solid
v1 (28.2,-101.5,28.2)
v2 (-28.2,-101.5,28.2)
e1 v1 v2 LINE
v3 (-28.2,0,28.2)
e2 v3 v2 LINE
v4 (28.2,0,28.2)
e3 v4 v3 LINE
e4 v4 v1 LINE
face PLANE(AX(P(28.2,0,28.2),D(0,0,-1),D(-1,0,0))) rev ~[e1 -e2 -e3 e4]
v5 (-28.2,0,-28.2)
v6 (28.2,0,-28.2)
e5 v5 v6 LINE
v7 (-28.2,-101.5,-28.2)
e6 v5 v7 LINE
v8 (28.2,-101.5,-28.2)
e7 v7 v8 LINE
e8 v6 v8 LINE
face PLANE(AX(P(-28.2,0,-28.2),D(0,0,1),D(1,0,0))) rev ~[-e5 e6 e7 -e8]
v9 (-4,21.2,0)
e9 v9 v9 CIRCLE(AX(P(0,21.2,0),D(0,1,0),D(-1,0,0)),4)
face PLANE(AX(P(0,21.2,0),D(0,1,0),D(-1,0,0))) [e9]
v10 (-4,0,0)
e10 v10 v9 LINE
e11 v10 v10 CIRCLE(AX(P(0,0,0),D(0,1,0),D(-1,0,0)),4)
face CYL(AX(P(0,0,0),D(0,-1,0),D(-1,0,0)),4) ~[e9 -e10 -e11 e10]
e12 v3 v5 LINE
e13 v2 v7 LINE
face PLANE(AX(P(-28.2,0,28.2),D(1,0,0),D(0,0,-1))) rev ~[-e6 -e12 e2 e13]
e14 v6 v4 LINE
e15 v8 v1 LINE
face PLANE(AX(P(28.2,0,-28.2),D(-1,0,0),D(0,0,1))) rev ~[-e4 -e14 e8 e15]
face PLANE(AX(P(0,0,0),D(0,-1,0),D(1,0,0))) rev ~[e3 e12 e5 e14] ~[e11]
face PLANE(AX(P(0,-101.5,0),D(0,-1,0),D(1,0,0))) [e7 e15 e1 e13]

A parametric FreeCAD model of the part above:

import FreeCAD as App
import Part
import Sketcher
from FreeCAD import Vector
Q = App.Units.Quantity


def add_polygon(sketch, points):
    """Adds a closed chain of lines whose ends are joined by coincident constraints."""
    first, n = sketch.GeometryCount, len(points)
    for a, b in zip(points, points[1:] + points[:1]):
        sketch.addGeometry(Part.LineSegment(App.Vector(*a, 0), App.Vector(*b, 0)), False)
    for i in range(n):
        sketch.addConstraint(Sketcher.Constraint("Coincident", first + i, 2, first + (i + 1) % n, 1))

doc = App.newDocument("Part")
body = doc.addObject("PartDesign::Body", "Body")

# Sketch on XZ plane
sketch1 = body.newObject("Sketcher::SketchObject", "Sketch")
sketch1.AttachmentSupport = (doc.getObject("XZ_Plane"), [""])
sketch1.MapMode = "FlatFace"
add_polygon(sketch1, [(-28, 28), (-28, -28), (28, -28), (28, 28)])  # lines 0-3
sketch1.addConstraint(Sketcher.Constraint("Vertical", 0))
sketch1.addConstraint(Sketcher.Constraint("Horizontal", 1))
sketch1.addConstraint(Sketcher.Constraint("Vertical", 2))
sketch1.addConstraint(Sketcher.Constraint("Horizontal", 3))
sketch1.addConstraint(Sketcher.Constraint("Symmetric", 0, 2, 2, 2, -1, 1))
sketch1.addConstraint(Sketcher.Constraint("Equal", 3, 0))
sketch1.addConstraint(Sketcher.Constraint("DistanceX", 1, 1, 1, 2, Q("56.4 mm")))
pad1 = body.newObject("PartDesign::Pad", "Pad")
pad1.Profile = sketch1
pad1.Length = 101.5

# Sketch on XZ plane
sketch2 = body.newObject("Sketcher::SketchObject", "Sketch001")
sketch2.AttachmentSupport = (doc.getObject("XZ_Plane"), [""])
sketch2.MapMode = "FlatFace"
sketch2.addGeometry(Part.Circle(Vector(0, 0, 0), Vector(0, 0, 1), 4), False)
sketch2.addConstraint(Sketcher.Constraint("Coincident", 0, 3, -1, 1))
sketch2.addConstraint(Sketcher.Constraint("Diameter", 0, Q("8 mm")))
pad2 = body.newObject("PartDesign::Pad", "Pad001")
pad2.Profile = sketch2
pad2.Length = 21.2
pad2.Reversed = True

doc.recompute()
